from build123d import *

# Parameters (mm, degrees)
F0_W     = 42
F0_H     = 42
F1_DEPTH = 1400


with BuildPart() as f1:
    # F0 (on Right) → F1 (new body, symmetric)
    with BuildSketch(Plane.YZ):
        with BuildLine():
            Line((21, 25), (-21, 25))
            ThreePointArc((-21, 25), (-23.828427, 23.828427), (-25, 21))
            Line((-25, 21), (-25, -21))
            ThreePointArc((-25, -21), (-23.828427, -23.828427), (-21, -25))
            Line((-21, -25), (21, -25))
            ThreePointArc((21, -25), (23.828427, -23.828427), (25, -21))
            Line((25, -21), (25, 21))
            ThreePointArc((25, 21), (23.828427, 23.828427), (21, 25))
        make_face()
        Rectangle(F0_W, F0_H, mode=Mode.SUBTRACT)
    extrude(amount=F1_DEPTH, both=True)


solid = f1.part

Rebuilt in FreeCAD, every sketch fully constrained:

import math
import FreeCAD as App
import Part
import Sketcher

doc = App.newDocument("Part")
body = doc.addObject("PartDesign::Body", "Body")

# Sketch on YZ plane
sketch1 = body.newObject("Sketcher::SketchObject", "Sketch")
sketch1.AttachmentSupport = (doc.getObject("YZ_Plane"), [""])
sketch1.MapMode = "FlatFace"
sketch1.addGeometry(Part.LineSegment(App.Vector(21, 25, 0), App.Vector(-21, 25, 0)), False)
sketch1.addGeometry(Part.ArcOfCircle(Part.Circle(App.Vector(-21, 21, 0), App.Vector(0, 0, 1), 4), math.radians(90), math.radians(180)), False)
sketch1.addGeometry(Part.LineSegment(App.Vector(-25, 21, 0), App.Vector(-25, -21, 0)), False)
sketch1.addGeometry(Part.ArcOfCircle(Part.Circle(App.Vector(-21, -21, 0), App.Vector(0, 0, 1), 4), math.radians(-180), math.radians(-90)), False)
sketch1.addGeometry(Part.LineSegment(App.Vector(-21, -25, 0), App.Vector(21, -25, 0)), False)
sketch1.addGeometry(Part.ArcOfCircle(Part.Circle(App.Vector(21, -21, 0), App.Vector(0, 0, 1), 4), math.radians(-90), math.radians(0)), False)
sketch1.addGeometry(Part.LineSegment(App.Vector(25, -21, 0), App.Vector(25, 21, 0)), False)
sketch1.addGeometry(Part.ArcOfCircle(Part.Circle(App.Vector(21, 21, 0), App.Vector(0, 0, 1), 4), math.radians(0), math.radians(90)), False)
sketch1.addGeometry(Part.LineSegment(App.Vector(21, -21, 0), App.Vector(-21, -21, 0)), False)
sketch1.addGeometry(Part.LineSegment(App.Vector(-21, -21, 0), App.Vector(-21, 21, 0)), False)
sketch1.addGeometry(Part.LineSegment(App.Vector(-21, 21, 0), App.Vector(21, 21, 0)), False)
sketch1.addGeometry(Part.LineSegment(App.Vector(21, 21, 0), App.Vector(21, -21, 0)), False)
sketch1.addConstraint(Sketcher.Constraint("Tangent", 0, 2, 1, 1))
sketch1.addConstraint(Sketcher.Constraint("Tangent", 1, 2, 2, 1))
sketch1.addConstraint(Sketcher.Constraint("Tangent", 2, 2, 3, 1))
sketch1.addConstraint(Sketcher.Constraint("Tangent", 3, 2, 4, 1))
sketch1.addConstraint(Sketcher.Constraint("Tangent", 4, 2, 5, 1))
sketch1.addConstraint(Sketcher.Constraint("Tangent", 5, 2, 6, 1))
sketch1.addConstraint(Sketcher.Constraint("Tangent", 6, 2, 7, 1))
sketch1.addConstraint(Sketcher.Constraint("Tangent", 7, 2, 0, 1))
sketch1.addConstraint(Sketcher.Constraint("Coincident", 8, 2, 9, 1))
sketch1.addConstraint(Sketcher.Constraint("Coincident", 9, 2, 10, 1))
sketch1.addConstraint(Sketcher.Constraint("Coincident", 10, 2, 11, 1))
sketch1.addConstraint(Sketcher.Constraint("Coincident", 11, 2, 8, 1))
sketch1.addConstraint(Sketcher.Constraint("Horizontal", 0))
sketch1.addConstraint(Sketcher.Constraint("Vertical", 2))
sketch1.addConstraint(Sketcher.Constraint("Horizontal", 4))
sketch1.addConstraint(Sketcher.Constraint("Vertical", 6))
sketch1.addConstraint(Sketcher.Constraint("Horizontal", 8))
sketch1.addConstraint(Sketcher.Constraint("Vertical", 9))
sketch1.addConstraint(Sketcher.Constraint("Horizontal", 10))
sketch1.addConstraint(Sketcher.Constraint("Vertical", 11))
sketch1.addConstraint(Sketcher.Constraint("Coincident", 8, 2, 3, 3))
sketch1.addConstraint(Sketcher.Constraint("Coincident", 9, 2, 1, 3))
sketch1.addConstraint(Sketcher.Constraint("Coincident", 10, 2, 7, 3))
sketch1.addConstraint(Sketcher.Constraint("Equal", 3, 5))
sketch1.addConstraint(Sketcher.Constraint("Symmetric", 1, 3, 5, 3, -1, 1))
sketch1.addConstraint(Sketcher.Constraint("Equal", 10, 2))
sketch1.addConstraint(Sketcher.Constraint("Radius", 1, 4.0))
sketch1.addConstraint(Sketcher.Constraint("DistanceX", 0, 2, 0, 1, 42.0))
pad1 = body.newObject("PartDesign::Pad", "Pad")
pad1.Profile = sketch1
pad1.Length = 2800
pad1.Midplane = True

doc.recompute()
